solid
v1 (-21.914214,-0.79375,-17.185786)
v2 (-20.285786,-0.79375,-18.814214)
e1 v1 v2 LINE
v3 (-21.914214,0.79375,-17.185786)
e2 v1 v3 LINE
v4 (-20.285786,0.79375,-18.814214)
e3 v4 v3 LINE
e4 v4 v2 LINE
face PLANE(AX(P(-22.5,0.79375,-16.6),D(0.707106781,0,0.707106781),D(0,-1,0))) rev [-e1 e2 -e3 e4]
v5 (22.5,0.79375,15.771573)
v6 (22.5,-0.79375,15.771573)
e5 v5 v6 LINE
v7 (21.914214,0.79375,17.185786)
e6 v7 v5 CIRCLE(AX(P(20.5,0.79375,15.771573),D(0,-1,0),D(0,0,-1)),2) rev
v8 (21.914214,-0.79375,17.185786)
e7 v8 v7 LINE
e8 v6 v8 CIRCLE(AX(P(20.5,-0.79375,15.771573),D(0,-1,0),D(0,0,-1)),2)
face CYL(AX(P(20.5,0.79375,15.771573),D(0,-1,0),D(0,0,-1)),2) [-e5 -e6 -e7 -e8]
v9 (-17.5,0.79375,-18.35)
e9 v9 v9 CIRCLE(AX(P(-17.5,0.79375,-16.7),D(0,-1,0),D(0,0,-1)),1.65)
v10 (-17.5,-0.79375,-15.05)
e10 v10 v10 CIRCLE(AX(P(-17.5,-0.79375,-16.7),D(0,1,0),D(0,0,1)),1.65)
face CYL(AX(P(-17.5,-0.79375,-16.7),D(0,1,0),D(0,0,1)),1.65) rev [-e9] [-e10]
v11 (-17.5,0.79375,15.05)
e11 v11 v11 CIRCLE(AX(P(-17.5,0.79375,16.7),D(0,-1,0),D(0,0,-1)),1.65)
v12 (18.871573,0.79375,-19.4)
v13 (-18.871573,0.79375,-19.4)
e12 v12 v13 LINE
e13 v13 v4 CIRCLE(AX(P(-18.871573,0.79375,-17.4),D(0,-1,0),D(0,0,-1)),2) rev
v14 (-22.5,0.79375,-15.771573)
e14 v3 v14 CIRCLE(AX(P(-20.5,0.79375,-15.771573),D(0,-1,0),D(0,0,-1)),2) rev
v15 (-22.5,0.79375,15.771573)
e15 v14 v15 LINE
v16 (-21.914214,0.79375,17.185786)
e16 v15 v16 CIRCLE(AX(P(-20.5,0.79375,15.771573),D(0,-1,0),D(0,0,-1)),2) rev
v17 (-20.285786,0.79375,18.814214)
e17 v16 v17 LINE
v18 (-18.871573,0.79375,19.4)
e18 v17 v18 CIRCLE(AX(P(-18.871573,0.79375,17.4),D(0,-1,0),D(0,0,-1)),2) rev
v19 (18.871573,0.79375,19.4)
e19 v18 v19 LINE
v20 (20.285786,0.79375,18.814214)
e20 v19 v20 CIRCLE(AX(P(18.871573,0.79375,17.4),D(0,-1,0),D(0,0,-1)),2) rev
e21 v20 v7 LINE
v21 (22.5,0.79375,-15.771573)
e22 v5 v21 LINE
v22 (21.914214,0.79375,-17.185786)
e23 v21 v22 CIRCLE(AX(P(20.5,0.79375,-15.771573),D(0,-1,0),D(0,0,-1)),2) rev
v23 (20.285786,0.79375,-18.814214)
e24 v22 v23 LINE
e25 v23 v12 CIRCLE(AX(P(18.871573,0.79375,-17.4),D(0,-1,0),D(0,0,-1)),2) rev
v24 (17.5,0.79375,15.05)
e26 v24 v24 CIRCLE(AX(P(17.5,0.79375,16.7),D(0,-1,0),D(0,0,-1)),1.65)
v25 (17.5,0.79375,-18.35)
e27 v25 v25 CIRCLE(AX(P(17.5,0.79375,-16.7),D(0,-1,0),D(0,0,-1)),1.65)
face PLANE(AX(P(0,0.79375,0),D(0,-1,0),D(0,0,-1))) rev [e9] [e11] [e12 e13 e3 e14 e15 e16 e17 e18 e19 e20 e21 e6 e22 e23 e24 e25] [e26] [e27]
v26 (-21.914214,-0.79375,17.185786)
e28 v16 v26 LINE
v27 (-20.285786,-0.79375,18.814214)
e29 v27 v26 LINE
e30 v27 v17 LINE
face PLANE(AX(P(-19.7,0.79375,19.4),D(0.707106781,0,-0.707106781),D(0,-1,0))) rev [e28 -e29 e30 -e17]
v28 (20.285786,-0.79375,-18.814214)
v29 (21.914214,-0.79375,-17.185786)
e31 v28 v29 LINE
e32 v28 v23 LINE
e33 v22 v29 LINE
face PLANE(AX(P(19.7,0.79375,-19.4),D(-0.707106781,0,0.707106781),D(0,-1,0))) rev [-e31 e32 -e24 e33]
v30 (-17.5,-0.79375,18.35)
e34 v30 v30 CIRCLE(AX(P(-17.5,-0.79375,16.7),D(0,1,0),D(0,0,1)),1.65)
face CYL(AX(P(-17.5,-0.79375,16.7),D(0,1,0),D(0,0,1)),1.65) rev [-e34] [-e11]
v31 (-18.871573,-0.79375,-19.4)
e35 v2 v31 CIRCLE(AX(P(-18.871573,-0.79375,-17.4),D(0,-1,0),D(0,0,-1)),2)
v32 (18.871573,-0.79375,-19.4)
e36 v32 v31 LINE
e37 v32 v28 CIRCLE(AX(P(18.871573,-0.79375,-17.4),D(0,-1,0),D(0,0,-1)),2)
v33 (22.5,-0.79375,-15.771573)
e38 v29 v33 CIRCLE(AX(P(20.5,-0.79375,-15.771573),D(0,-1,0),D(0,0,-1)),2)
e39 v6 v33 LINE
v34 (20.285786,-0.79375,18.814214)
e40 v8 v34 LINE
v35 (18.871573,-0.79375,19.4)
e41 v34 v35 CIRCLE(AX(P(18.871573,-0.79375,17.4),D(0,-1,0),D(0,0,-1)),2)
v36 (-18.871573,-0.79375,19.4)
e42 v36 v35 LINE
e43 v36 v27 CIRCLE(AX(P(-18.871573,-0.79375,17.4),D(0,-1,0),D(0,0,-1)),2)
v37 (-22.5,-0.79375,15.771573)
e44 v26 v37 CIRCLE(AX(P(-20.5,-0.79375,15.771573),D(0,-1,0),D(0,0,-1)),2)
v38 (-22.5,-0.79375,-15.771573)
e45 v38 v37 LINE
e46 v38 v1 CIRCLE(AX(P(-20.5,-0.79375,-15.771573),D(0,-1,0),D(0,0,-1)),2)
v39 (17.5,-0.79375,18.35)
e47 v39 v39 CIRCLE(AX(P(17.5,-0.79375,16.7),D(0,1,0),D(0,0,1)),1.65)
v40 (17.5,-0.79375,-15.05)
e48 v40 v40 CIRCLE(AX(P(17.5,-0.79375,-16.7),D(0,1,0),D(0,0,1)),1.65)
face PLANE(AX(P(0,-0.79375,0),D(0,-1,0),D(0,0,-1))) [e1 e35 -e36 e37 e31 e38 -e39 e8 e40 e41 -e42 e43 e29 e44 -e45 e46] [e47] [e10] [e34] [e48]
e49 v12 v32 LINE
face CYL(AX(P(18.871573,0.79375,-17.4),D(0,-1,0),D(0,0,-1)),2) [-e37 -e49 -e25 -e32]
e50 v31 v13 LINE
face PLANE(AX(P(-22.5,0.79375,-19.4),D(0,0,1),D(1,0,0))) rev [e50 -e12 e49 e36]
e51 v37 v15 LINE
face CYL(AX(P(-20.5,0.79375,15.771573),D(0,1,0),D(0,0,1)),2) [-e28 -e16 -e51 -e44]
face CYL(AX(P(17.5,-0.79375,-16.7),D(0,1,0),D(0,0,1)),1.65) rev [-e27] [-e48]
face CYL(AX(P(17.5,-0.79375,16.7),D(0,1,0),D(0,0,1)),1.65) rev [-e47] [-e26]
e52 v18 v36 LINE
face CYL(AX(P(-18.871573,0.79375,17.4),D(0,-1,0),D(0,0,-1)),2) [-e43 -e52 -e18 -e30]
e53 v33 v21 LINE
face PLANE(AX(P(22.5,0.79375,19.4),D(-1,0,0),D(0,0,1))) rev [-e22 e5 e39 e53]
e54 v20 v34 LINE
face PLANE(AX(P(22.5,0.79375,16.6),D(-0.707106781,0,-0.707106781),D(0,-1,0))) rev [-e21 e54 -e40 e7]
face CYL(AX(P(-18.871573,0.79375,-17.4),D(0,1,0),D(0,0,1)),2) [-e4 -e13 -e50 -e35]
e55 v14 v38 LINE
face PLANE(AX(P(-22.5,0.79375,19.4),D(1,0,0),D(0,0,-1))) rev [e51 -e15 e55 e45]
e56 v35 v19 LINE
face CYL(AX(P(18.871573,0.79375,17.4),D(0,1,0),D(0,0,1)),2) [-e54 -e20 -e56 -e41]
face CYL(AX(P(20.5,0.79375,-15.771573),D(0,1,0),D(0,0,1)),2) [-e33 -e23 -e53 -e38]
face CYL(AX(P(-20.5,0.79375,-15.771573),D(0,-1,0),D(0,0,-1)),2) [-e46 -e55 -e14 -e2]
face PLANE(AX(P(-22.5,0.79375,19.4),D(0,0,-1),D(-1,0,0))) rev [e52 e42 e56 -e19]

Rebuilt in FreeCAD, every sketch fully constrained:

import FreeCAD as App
import Part
import Sketcher


def edges_at(feature, points):
    """Names of the edges that pass closest to the given points."""
    edges = feature.Shape.Edges
    near = lambda p: min(range(len(edges)), key=lambda i: edges[i].distToShape(Part.Vertex(*p))[0])
    return sorted({f"Edge{near(p) + 1}" for p in points})


def add_polygon(sketch, points):
    """Adds a closed chain of lines whose ends are joined by coincident constraints."""
    first, n = sketch.GeometryCount, len(points)
    for a, b in zip(points, points[1:] + points[:1]):
        sketch.addGeometry(Part.LineSegment(App.Vector(*a, 0), App.Vector(*b, 0)), False)
    for i in range(n):
        sketch.addConstraint(Sketcher.Constraint("Coincident", first + i, 2, first + (i + 1) % n, 1))

doc = App.newDocument("Part")
body = doc.addObject("PartDesign::Body", "Body")

# Sketch on XZ plane
sketch1 = body.newObject("Sketcher::SketchObject", "Sketch")
sketch1.AttachmentSupport = (doc.getObject("XZ_Plane"), [""])
sketch1.MapMode = "FlatFace"
add_polygon(sketch1, [(-22, -19), (-22, 19), (22, 19), (22, -19)])  # lines 0-3
sketch1.addConstraint([
    Sketcher.Constraint("Vertical", 0),
    Sketcher.Constraint("Horizontal", 1),
    Sketcher.Constraint("Vertical", 2),
    Sketcher.Constraint("Horizontal", 3),
    Sketcher.Constraint("Symmetric", 0, 2, 2, 2, -1, 1),
    Sketcher.Constraint("DistanceX", 1, 1, 1, 2, 45.0),
    Sketcher.Constraint("DistanceY", 0, 1, 0, 2, 38.8),
])
pad1 = body.newObject("PartDesign::Pad", "Pad")
pad1.Profile = sketch1
pad1.Length = 1.5875
pad1.Midplane = True

# Sketch on XZ plane
sketch2 = body.newObject("Sketcher::SketchObject", "Sketch001")
sketch2.AttachmentSupport = (doc.getObject("XZ_Plane"), [""])
sketch2.MapMode = "FlatFace"
sketch2.AttachmentOffset = App.Placement(App.Vector(0, 0, -0.79375), App.Rotation())
sketch2.addGeometry([
    Part.Circle(App.Vector(-17.5, -16.7, 0), App.Vector(0, 0, 1), 1.6),
    Part.Circle(App.Vector(17.5, -16.7, 0), App.Vector(0, 0, 1), 1.6),
    Part.Circle(App.Vector(17.5, 16.7, 0), App.Vector(0, 0, 1), 1.6),
    Part.Circle(App.Vector(-17.5, 16.7, 0), App.Vector(0, 0, 1), 1.6),
], False)
sketch2.addConstraint([
    Sketcher.Constraint("Equal", 0, 1),
    Sketcher.Constraint("Equal", 1, 2),
    Sketcher.Constraint("Equal", 2, 3),
    Sketcher.Constraint("Symmetric", 0, 3, 2, 3, -1, 1),
    Sketcher.Constraint("Symmetric", 1, 3, 3, 3, -1, 1),
    Sketcher.Constraint("Symmetric", 0, 3, 1, 3, -2),
    Sketcher.Constraint("Diameter", 0, 3.3),
    Sketcher.Constraint("DistanceX", 0, 3, 1, 3, 35.0),
    Sketcher.Constraint("DistanceY", 0, 3, -1, 1, 16.7),
])
pocket1 = body.newObject("PartDesign::Pocket", "Pocket")
pocket1.Profile = sketch2
pocket1.Type = "ThroughAll"
pocket1.Midplane = True
doc.recompute()

chamfer = body.newObject("PartDesign::Chamfer", "Chamfer")
chamfer.Base = (pocket1, edges_at(pocket1, [
    (22.5, 0, 19.4),
    (-22.5, 0, 19.4),
    (-22.5, 0, -19.4),
    (22.5, 0, -19.4),
]))
chamfer.Size = 2.8
doc.recompute()

fillet = body.newObject("PartDesign::Fillet", "Fillet")
fillet.Base = (chamfer, edges_at(chamfer, [
    (19.7, 0, 19.4),
    (-19.7, 0, 19.4),
    (-22.5, 0, -16.6),
    (-22.5, 0, 16.6),
    (19.7, 0, -19.4),
    (-19.7, 0, -19.4),
    (22.5, 0, 16.6),
    (22.5, 0, -16.6),
]))
fillet.Radius = 2

doc.recompute()
